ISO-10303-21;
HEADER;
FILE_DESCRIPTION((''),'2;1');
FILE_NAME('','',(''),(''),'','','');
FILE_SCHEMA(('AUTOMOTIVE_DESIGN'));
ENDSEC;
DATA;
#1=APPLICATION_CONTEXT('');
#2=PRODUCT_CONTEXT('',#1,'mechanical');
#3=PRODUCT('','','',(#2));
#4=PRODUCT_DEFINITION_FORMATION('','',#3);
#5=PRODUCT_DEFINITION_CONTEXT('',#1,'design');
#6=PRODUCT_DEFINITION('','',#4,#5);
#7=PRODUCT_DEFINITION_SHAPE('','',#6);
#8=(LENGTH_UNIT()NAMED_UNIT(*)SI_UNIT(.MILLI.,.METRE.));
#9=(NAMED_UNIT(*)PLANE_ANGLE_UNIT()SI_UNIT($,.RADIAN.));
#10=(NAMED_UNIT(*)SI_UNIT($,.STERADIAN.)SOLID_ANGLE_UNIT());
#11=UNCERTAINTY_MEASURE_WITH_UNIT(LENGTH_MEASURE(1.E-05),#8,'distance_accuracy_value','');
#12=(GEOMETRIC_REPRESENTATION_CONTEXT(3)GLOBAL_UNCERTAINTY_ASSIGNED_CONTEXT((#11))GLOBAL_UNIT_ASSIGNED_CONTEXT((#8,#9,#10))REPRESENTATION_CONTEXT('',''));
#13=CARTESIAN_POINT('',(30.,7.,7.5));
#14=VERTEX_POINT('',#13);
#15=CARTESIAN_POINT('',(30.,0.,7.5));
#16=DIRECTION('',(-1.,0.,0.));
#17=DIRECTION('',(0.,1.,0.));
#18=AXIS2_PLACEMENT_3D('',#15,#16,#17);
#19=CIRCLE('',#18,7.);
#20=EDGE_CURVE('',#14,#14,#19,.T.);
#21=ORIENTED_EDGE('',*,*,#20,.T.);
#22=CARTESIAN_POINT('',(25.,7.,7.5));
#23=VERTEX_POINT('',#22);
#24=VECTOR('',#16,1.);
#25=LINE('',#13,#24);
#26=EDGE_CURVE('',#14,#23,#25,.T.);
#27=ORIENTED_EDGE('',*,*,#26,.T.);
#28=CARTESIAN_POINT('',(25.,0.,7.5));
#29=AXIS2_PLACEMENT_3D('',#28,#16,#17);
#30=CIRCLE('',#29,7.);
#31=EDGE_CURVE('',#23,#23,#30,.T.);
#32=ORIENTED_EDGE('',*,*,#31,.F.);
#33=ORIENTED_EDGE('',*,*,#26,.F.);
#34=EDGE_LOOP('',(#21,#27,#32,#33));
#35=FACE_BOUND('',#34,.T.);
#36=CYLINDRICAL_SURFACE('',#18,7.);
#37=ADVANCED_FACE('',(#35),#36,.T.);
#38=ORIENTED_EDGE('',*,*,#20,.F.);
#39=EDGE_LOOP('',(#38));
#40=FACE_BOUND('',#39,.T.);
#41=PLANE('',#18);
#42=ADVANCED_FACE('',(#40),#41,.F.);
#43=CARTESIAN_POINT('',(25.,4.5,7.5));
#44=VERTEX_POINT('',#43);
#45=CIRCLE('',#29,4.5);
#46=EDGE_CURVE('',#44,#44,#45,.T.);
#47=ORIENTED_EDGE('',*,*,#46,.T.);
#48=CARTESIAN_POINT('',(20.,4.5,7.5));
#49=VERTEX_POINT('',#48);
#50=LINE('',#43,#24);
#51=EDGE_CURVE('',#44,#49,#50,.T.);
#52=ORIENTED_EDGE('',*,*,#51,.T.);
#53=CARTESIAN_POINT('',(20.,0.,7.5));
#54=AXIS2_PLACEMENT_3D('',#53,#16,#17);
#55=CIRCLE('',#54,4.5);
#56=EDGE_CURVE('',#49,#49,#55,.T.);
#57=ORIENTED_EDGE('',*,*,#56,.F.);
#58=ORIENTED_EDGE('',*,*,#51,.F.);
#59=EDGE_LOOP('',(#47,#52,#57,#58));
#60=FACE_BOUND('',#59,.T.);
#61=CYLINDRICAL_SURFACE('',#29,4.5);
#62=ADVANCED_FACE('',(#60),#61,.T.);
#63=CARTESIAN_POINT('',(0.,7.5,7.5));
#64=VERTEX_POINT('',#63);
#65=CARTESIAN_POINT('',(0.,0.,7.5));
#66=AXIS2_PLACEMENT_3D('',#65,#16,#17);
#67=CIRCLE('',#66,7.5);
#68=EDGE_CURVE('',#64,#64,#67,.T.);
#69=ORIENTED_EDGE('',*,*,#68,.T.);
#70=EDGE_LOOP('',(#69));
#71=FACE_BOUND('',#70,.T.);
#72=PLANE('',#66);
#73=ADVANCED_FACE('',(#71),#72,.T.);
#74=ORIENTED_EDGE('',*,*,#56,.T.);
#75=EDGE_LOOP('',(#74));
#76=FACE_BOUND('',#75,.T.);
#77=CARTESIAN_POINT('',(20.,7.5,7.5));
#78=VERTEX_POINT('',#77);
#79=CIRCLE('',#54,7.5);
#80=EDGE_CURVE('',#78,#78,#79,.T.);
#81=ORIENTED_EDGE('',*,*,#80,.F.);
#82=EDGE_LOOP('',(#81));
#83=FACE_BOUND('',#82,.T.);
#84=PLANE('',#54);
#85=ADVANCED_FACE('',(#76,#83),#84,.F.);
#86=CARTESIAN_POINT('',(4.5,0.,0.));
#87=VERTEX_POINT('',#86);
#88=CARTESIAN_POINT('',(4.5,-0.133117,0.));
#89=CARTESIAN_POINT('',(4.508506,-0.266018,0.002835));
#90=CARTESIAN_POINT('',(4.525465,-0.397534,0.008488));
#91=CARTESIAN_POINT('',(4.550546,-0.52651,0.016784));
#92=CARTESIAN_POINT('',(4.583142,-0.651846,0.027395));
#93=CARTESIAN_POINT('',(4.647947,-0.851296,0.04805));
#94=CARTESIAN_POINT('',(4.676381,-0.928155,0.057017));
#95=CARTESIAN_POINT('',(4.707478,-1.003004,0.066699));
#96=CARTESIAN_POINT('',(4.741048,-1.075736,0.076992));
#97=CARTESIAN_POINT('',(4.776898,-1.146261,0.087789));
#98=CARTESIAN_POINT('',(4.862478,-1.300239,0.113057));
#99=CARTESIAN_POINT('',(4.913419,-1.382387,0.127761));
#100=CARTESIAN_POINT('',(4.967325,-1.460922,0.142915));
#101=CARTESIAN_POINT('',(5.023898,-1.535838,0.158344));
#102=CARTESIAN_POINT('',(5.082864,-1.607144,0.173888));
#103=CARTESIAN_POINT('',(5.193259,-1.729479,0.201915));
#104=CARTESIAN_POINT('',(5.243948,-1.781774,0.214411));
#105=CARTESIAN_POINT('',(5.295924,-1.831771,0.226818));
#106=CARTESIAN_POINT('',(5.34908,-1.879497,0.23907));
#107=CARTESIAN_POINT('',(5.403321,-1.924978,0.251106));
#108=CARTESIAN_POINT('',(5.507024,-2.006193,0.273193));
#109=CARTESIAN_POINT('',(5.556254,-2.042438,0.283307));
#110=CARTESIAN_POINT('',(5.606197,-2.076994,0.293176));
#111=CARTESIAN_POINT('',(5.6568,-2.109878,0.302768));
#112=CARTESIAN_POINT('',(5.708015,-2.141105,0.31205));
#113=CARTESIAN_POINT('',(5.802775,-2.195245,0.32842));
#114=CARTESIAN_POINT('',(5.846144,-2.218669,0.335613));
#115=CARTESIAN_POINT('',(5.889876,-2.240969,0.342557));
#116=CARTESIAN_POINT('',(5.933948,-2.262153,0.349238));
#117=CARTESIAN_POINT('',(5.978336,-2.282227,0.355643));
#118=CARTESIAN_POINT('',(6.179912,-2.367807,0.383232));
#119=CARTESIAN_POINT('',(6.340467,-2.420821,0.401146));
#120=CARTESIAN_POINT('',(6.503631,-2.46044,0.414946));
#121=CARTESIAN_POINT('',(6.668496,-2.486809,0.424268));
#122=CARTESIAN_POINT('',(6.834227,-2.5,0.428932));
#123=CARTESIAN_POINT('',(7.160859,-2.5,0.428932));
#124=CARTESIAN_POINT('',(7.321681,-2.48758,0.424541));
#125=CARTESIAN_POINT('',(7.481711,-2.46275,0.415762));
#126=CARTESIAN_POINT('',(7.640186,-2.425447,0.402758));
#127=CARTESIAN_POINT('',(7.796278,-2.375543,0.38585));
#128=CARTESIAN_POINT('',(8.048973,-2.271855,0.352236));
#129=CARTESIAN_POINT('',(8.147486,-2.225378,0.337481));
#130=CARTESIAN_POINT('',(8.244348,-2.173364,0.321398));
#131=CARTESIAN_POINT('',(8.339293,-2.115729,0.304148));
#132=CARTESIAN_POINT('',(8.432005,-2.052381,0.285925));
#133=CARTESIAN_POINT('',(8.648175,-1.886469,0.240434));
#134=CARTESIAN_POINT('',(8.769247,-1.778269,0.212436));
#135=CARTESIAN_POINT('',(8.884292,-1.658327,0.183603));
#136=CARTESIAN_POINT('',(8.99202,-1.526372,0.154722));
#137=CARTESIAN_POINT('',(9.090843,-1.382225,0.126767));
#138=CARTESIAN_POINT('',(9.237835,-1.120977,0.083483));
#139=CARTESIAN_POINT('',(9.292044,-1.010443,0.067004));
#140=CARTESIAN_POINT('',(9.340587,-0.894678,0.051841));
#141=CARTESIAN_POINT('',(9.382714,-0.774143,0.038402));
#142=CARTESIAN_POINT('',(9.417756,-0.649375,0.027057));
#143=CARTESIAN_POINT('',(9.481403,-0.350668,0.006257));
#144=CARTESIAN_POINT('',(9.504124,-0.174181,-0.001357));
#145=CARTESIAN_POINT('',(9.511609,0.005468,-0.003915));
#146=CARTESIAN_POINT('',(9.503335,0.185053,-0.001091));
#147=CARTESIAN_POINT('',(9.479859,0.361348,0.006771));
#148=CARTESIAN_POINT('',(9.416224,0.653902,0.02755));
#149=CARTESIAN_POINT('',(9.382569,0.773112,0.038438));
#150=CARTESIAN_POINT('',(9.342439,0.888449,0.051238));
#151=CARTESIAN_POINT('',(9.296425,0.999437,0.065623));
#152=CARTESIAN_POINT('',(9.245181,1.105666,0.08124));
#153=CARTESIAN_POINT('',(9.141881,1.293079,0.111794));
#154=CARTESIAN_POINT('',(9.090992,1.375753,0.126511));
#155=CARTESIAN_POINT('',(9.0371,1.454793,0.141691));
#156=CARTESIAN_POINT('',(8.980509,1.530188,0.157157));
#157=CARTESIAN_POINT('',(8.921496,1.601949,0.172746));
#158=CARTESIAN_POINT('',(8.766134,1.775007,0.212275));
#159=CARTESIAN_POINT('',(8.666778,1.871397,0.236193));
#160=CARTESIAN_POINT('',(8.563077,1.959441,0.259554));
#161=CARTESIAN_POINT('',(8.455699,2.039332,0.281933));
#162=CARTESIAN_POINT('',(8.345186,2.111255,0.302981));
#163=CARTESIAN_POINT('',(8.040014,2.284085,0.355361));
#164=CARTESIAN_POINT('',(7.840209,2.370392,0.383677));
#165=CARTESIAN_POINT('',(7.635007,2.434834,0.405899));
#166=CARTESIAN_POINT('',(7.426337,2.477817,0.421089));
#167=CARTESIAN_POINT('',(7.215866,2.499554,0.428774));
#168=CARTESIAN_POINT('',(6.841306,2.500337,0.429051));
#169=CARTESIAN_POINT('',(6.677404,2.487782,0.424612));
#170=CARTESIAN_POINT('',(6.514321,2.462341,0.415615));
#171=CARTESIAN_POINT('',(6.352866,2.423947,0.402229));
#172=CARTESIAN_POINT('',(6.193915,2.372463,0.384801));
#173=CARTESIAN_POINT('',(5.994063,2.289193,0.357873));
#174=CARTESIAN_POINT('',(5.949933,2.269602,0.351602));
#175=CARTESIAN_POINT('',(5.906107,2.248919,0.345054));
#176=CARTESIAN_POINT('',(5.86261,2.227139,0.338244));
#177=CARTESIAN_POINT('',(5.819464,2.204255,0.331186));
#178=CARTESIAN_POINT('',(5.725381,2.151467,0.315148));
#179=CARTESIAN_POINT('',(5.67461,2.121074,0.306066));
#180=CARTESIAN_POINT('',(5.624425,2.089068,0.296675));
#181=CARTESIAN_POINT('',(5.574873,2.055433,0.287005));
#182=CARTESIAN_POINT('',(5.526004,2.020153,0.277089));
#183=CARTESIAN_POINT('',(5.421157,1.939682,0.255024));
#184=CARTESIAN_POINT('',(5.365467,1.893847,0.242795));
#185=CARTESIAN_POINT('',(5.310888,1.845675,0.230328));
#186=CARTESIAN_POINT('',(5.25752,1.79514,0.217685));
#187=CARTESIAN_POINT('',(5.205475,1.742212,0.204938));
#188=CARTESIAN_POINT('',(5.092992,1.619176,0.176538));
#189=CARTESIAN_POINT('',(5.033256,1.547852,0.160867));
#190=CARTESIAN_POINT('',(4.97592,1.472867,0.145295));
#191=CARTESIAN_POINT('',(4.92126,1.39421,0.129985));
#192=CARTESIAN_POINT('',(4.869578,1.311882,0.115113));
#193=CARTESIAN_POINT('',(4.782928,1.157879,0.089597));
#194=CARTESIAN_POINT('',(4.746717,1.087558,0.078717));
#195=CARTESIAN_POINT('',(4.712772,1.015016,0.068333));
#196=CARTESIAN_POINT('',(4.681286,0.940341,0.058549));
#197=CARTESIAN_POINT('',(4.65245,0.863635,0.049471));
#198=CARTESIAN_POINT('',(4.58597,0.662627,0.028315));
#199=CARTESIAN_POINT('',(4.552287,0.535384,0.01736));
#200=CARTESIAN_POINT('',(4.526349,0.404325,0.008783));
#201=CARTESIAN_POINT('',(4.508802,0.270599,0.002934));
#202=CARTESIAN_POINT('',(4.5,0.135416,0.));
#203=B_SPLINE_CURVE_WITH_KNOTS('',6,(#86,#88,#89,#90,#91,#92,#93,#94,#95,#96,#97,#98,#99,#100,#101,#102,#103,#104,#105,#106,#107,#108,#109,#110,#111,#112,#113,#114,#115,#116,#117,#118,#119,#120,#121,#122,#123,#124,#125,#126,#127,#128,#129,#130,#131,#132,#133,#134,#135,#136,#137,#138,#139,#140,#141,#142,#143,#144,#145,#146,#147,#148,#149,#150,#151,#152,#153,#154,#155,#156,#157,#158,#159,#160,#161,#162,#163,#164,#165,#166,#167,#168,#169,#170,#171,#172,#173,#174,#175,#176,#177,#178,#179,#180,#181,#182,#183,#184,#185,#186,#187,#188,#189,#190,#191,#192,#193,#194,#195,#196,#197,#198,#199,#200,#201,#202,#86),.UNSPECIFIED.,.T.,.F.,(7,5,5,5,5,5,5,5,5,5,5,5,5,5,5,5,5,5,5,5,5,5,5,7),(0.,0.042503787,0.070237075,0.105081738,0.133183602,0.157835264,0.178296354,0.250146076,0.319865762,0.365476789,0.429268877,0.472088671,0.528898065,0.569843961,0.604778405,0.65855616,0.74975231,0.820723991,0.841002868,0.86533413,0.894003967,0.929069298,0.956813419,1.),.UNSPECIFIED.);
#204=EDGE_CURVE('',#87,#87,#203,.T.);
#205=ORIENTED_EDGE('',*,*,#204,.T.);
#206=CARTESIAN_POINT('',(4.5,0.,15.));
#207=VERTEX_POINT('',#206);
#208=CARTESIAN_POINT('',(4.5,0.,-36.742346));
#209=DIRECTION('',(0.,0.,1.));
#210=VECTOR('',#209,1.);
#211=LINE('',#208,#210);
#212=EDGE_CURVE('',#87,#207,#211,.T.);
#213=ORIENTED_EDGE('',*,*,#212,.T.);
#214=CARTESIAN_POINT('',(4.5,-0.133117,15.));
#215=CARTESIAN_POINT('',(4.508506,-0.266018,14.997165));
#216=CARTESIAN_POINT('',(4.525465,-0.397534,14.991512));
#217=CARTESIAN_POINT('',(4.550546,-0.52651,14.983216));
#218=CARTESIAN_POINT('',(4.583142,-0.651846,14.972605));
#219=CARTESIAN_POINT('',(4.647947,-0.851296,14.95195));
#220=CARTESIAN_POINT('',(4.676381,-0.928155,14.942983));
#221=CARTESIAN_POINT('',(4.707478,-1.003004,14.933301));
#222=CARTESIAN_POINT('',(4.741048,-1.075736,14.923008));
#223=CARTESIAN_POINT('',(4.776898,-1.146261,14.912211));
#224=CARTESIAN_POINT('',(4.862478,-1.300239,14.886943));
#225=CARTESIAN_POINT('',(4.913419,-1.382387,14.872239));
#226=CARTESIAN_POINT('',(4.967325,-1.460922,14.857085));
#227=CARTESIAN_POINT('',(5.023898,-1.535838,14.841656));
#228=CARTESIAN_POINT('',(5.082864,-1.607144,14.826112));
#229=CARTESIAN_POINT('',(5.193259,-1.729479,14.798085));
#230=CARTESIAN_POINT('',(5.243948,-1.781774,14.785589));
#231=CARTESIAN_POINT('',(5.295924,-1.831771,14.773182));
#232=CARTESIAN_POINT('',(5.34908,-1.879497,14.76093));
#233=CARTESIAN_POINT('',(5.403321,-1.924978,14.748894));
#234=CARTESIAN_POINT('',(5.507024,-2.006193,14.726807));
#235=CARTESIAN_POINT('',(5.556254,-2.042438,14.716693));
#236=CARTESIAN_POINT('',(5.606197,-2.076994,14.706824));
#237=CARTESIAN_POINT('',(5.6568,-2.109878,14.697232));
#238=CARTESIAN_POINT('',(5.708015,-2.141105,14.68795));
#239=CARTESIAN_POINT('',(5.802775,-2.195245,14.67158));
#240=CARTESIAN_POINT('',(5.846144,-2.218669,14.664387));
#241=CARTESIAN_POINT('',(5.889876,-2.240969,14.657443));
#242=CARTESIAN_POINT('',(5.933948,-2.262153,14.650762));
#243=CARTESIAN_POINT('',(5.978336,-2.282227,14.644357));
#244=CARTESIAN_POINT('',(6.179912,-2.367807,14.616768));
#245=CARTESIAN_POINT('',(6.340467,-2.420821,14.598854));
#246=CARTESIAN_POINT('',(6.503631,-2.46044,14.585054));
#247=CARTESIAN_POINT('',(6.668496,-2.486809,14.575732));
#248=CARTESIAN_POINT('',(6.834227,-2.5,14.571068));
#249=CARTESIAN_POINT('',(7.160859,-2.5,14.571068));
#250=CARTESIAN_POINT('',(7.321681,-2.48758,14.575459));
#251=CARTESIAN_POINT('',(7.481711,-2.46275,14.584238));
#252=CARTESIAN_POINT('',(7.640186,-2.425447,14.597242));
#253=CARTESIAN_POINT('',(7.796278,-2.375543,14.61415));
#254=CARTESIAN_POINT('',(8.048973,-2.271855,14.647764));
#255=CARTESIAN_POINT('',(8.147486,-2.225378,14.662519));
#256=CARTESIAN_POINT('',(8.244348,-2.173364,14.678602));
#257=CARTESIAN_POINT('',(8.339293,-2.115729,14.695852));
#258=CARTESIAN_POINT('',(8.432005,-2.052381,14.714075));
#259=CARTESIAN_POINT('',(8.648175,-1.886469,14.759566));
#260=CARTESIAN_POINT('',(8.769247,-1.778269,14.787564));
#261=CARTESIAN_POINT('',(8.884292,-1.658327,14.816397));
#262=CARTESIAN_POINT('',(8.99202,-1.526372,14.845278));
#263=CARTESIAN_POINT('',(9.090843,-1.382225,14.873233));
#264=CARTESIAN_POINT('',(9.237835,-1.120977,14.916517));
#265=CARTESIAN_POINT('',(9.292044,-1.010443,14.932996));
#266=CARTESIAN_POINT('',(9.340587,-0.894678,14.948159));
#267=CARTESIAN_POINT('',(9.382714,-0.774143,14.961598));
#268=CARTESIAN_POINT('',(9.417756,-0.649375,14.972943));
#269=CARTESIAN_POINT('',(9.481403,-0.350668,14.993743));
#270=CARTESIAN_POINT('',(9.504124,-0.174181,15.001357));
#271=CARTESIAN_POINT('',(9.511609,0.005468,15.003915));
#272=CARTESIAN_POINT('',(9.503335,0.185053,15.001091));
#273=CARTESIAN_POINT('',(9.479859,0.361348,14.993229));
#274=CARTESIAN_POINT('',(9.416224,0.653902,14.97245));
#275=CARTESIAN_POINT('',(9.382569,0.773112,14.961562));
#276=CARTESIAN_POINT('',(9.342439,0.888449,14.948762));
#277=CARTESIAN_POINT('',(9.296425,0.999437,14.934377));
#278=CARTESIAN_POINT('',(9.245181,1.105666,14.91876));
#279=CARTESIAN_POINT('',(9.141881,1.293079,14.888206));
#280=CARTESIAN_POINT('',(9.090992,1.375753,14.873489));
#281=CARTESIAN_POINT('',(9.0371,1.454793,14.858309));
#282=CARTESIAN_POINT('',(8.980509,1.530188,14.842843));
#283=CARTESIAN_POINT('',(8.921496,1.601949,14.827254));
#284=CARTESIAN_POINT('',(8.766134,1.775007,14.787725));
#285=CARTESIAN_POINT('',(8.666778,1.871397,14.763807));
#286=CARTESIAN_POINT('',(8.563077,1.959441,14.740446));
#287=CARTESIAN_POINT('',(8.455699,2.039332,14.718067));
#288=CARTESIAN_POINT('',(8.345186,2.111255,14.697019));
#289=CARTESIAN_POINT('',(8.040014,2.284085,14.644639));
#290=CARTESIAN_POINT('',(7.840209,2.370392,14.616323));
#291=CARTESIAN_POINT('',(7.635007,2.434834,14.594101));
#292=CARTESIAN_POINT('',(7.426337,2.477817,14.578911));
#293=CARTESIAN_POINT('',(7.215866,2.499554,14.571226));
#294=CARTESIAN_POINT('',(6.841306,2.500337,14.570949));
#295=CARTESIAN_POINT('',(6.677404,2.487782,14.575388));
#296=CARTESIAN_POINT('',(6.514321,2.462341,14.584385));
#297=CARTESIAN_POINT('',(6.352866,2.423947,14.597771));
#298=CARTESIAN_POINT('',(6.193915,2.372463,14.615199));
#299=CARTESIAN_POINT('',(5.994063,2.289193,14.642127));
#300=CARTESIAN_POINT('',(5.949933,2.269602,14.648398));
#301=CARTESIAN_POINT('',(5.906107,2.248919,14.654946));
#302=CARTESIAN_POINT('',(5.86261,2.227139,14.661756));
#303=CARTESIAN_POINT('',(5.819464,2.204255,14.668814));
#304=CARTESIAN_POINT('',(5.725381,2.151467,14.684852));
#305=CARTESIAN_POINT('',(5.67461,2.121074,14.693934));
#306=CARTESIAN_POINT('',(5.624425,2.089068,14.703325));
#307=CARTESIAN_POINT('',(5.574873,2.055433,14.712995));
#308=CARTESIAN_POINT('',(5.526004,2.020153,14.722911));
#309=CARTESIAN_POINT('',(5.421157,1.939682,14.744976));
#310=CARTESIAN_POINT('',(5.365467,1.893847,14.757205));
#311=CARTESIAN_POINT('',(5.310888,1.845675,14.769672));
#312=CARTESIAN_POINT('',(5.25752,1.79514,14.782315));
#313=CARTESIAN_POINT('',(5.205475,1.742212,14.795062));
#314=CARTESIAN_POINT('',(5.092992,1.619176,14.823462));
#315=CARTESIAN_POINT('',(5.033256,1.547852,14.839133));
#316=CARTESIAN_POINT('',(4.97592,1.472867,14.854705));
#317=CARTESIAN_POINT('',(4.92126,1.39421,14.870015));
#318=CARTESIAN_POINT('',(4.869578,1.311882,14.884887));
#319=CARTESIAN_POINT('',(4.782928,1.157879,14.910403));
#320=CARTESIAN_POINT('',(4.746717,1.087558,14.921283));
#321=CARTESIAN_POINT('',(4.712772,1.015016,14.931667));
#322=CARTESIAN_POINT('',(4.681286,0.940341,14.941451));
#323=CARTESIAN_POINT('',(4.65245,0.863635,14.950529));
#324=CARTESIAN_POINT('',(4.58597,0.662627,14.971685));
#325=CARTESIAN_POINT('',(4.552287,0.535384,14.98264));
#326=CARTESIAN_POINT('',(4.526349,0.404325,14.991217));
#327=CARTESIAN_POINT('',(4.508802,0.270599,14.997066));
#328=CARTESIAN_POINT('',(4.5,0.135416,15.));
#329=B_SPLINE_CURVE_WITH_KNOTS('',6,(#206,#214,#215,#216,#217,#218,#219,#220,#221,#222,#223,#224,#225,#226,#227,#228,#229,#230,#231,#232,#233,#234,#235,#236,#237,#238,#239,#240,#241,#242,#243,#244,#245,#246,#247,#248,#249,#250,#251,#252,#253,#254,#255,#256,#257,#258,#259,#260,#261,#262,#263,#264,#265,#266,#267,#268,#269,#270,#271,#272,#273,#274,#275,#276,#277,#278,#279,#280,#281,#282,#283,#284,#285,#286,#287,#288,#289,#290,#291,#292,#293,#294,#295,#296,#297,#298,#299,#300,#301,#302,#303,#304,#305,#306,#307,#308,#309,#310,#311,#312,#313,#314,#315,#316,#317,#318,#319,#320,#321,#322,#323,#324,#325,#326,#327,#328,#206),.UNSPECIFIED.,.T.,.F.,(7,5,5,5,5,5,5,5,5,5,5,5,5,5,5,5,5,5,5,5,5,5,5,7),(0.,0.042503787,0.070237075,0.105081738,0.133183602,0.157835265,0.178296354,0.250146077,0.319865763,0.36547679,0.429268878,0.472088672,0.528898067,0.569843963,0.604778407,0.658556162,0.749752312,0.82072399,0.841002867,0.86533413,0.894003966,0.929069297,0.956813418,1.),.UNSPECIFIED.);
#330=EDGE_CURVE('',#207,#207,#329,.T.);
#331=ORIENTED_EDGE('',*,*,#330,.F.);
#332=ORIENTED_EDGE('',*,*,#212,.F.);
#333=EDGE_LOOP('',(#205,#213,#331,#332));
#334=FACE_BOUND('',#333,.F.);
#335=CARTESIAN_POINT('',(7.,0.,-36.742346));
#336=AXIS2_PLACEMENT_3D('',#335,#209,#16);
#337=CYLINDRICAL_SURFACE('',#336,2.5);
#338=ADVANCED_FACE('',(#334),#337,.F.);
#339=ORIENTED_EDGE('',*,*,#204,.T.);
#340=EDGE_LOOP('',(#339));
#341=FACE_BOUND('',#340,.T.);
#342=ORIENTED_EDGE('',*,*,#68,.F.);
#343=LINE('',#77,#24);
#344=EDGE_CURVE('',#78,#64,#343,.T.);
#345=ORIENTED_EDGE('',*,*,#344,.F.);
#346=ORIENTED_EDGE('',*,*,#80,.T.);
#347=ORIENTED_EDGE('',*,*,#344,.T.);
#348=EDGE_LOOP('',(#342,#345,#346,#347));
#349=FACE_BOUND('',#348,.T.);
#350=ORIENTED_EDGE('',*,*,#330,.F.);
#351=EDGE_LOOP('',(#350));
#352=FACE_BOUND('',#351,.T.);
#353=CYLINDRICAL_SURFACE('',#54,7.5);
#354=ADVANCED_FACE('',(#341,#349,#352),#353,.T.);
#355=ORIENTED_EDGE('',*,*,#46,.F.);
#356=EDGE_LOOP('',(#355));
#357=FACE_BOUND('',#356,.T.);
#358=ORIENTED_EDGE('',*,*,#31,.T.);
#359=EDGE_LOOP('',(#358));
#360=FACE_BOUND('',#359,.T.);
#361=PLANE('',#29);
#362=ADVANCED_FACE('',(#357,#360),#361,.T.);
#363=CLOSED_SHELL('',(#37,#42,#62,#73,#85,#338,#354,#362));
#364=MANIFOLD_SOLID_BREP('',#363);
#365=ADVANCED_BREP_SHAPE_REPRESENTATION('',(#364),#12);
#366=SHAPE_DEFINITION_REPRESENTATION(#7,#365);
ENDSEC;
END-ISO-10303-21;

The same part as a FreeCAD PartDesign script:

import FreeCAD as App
import Part
import Sketcher
from FreeCAD import Vector


def add_polygon(sketch, points):
    """Adds a closed chain of lines whose ends are joined by coincident constraints."""
    first, n = sketch.GeometryCount, len(points)
    for a, b in zip(points, points[1:] + points[:1]):
        sketch.addGeometry(Part.LineSegment(App.Vector(*a, 0), App.Vector(*b, 0)), False)
    for i in range(n):
        sketch.addConstraint(Sketcher.Constraint("Coincident", first + i, 2, first + (i + 1) % n, 1))

doc = App.newDocument("Part")
body = doc.addObject("PartDesign::Body", "Body")

# Sketch on XY plane
sketch1 = body.newObject("Sketcher::SketchObject", "Sketch")
sketch1.AttachmentSupport = (doc.getObject("XY_Plane"), [""])
sketch1.MapMode = "FlatFace"
add_polygon(sketch1, [(0, 7.5), (0, 0), (30, 0), (30, 7), (25, 7), (25, 4.5), (20, 4.5), (20, 7.5)])  # lines 0-7
sketch1.addConstraint(Sketcher.Constraint("Vertical", 0))
sketch1.addConstraint(Sketcher.Constraint("Horizontal", 1))
sketch1.addConstraint(Sketcher.Constraint("Vertical", 2))
sketch1.addConstraint(Sketcher.Constraint("Horizontal", 3))
sketch1.addConstraint(Sketcher.Constraint("Vertical", 4))
sketch1.addConstraint(Sketcher.Constraint("Horizontal", 5))
sketch1.addConstraint(Sketcher.Constraint("Vertical", 6))
sketch1.addConstraint(Sketcher.Constraint("Horizontal", 7))
sketch1.addConstraint(Sketcher.Constraint("Coincident", 0, 2, -1, 1))
sketch1.addConstraint(Sketcher.Constraint("Equal", 3, 5))
sketch1.addConstraint(Sketcher.Constraint("DistanceX", 1, 1, 1, 2, 30.0))
sketch1.addConstraint(Sketcher.Constraint("DistanceX", 3, 2, 3, 1, 5.0))
sketch1.addConstraint(Sketcher.Constraint("DistanceY", 2, 1, 2, 2, 7.0))
sketch1.addConstraint(Sketcher.Constraint("DistanceY", 6, 1, 6, 2, 3.0))
sketch1.addConstraint(Sketcher.Constraint("DistanceY", 0, 2, 0, 1, 7.5))
revolution = body.newObject("PartDesign::Revolution", "Revolution")
revolution.Profile = sketch1
revolution.ReferenceAxis = (sketch1, ["H_Axis"])
revolution.Angle = 360
body2 = doc.addObject("PartDesign::Body", "Body001")
doc.recompute()

body.Placement = App.Placement(Vector(0, 0, 7.5), App.Rotation(Vector(0, 0, 1), 0))
boolean = body2.newObject("PartDesign::Boolean", "Boolean")
boolean.Type = "Fuse"
boolean.addObjects([body])

# Sketch on XY plane
sketch2 = body2.newObject("Sketcher::SketchObject", "Sketch001")
sketch2.AttachmentSupport = (doc.getObject("XY_Plane001"), [""])
sketch2.MapMode = "FlatFace"
sketch2.addGeometry(Part.Circle(Vector(7, 0, 0), Vector(0, 0, 1), 2.5), False)
sketch2.addConstraint(Sketcher.Constraint("PointOnObject", 0, 3, -1))
sketch2.addConstraint(Sketcher.Constraint("Diameter", 0, 5.0))
sketch2.addConstraint(Sketcher.Constraint("DistanceX", -1, 1, 0, 3, 7.0))
doc.recompute()
hole = body2.newObject("PartDesign::Hole", "Hole")
hole.Profile = sketch2
hole.ThreadType = "None"
hole.Diameter = 5
hole.DepthType = "ThroughAll"
hole.Reversed = True

doc.recompute()
